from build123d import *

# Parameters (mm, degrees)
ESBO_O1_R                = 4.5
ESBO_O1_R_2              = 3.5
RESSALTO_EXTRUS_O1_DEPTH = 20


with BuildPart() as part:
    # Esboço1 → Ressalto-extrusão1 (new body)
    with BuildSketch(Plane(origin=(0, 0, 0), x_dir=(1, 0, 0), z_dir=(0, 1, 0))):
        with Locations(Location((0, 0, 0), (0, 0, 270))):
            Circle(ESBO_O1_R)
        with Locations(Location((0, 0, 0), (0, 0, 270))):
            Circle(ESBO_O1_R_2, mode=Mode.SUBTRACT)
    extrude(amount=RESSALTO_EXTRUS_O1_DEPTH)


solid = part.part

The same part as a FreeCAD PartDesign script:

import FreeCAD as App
import Part
import Sketcher

V = App.Vector

doc = App.newDocument("Part")
body = doc.addObject("PartDesign::Body", "Body")

# Sketch on XZ plane
sketch1 = body.newObject("Sketcher::SketchObject", "Sketch")
sketch1.AttachmentSupport = (doc.getObject("XZ_Plane"), [""])
sketch1.MapMode = "FlatFace"
sketch1.addGeometry([
    Part.Circle(V(0, 0, 0), V(0, 0, 1), 4.5),
    Part.Circle(V(0, 0, 0), V(0, 0, 1), 3.5),
], False)
sketch1.addConstraint([
    Sketcher.Constraint("Coincident", 0, 3, -1, 1),
    Sketcher.Constraint("Coincident", 1, 3, -1, 1),
    Sketcher.Constraint("Diameter", 0, 9.0),
    Sketcher.Constraint("Diameter", 1, 7.0),
])
pad1 = body.newObject("PartDesign::Pad", "Pad")
pad1.Profile = sketch1
pad1.Length = 20
pad1.Reversed = True

doc.recompute()
